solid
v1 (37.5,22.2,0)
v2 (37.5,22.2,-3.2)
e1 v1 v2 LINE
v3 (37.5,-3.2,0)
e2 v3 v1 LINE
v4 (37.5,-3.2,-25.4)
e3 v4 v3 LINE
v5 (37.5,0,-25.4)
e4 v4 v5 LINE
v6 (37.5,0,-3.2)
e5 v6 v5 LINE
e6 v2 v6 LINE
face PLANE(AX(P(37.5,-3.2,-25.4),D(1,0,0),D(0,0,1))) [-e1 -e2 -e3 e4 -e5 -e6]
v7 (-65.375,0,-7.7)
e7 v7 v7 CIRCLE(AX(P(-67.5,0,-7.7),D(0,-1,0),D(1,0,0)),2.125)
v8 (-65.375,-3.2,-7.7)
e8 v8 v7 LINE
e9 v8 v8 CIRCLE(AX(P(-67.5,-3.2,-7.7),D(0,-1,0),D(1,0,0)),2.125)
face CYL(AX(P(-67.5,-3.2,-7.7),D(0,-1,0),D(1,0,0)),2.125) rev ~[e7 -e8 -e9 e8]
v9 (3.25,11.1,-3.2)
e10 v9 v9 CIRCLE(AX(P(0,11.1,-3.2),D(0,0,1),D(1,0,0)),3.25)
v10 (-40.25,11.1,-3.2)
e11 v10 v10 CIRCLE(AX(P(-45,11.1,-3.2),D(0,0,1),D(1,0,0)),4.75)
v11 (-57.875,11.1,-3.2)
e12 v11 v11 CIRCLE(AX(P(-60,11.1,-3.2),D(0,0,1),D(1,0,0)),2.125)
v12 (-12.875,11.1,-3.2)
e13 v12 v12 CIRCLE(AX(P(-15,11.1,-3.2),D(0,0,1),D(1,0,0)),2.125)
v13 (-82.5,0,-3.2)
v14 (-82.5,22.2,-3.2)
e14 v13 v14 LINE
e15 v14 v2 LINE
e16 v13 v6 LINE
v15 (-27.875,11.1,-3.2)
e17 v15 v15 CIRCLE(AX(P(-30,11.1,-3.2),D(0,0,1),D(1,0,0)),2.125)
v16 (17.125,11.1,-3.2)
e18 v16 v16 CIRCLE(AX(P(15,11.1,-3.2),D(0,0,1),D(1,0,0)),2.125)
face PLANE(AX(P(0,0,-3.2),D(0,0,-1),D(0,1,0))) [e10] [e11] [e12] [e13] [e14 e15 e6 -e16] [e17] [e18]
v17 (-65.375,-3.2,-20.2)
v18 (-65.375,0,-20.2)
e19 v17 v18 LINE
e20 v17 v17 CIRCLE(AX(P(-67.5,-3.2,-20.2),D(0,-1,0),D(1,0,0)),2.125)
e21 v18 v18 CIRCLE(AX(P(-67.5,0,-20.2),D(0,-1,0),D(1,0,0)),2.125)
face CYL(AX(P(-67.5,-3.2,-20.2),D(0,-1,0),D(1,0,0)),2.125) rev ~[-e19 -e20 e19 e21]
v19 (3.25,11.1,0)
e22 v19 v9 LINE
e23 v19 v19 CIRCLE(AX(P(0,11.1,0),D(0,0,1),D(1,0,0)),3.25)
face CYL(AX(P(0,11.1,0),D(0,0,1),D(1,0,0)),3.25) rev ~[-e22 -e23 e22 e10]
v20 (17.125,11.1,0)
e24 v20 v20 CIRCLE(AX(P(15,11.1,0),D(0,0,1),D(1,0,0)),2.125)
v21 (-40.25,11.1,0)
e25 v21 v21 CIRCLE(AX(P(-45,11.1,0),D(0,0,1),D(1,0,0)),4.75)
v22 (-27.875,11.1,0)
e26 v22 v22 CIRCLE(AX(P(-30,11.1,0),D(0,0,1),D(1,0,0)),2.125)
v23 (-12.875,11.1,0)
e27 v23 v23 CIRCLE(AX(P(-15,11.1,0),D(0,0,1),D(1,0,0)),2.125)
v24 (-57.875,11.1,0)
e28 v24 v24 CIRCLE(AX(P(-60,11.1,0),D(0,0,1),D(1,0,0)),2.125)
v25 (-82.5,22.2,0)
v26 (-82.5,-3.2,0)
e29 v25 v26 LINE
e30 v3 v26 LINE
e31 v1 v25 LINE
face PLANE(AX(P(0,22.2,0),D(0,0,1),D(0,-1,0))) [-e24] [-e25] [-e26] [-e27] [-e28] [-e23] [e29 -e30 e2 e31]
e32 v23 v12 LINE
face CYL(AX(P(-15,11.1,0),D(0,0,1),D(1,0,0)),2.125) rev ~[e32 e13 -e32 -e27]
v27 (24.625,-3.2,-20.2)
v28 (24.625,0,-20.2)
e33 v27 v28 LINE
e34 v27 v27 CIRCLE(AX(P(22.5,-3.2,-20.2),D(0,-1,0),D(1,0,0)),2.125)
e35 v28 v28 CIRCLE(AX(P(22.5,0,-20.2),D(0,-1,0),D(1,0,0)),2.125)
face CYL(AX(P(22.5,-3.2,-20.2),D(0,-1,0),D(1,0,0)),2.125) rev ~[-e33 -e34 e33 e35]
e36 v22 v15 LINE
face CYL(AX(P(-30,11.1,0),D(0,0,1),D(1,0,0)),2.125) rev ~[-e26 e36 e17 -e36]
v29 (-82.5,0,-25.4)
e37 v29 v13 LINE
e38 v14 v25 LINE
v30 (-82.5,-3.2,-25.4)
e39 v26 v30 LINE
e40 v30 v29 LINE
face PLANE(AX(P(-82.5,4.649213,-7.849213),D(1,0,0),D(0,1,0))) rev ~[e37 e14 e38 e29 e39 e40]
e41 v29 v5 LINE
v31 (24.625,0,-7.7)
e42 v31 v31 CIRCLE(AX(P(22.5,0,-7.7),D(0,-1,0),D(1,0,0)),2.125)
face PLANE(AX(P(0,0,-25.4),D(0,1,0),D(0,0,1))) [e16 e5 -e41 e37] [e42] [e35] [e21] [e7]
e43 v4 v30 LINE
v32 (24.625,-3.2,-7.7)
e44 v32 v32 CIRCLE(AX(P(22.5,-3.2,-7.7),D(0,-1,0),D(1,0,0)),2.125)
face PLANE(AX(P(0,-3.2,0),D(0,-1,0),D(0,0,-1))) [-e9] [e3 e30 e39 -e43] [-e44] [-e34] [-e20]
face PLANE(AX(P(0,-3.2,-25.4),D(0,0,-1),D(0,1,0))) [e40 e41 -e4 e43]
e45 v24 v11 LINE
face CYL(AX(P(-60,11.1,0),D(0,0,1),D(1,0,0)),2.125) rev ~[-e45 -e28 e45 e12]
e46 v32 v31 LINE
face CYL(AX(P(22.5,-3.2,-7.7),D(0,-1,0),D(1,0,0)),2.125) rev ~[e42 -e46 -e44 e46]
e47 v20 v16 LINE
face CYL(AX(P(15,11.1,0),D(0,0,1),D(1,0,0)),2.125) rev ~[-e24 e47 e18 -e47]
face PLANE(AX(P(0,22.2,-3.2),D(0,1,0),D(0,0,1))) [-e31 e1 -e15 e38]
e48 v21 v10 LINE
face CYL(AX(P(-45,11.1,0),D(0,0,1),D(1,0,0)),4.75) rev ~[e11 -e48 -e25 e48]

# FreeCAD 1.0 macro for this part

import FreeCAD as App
import Part
import Sketcher

V = App.Vector

doc = App.newDocument("Part")
params = doc.addObject("Spreadsheet::Sheet", "Params")
for row, (alias, value) in enumerate([
    ("sketch1_width", "3.2 mm"),
    ("sketch1_width2", "22.2 mm"),
    ("pad1_length", "165 mm"),
    ("sketch2_diameter", "4.25 mm"),
    ("sketch2_width", "45 mm"),
    ("sketch2_height", "25.4 mm"),
    ("sketch3_diameter", "6.5 mm"),
    ("sketch3_diameter2", "9.5 mm"),
    ("sketch3_diameter3", "4.25 mm"),
    ("pocket2_length", "5 mm"),
], start=1):
    params.set(f"A{row}", alias)
    params.set(f"B{row}", "=" + value)
    params.setAlias(f"B{row}", alias)

body = doc.addObject("PartDesign::Body", "Body")

# Sketch on YZ plane
sketch1 = body.newObject("Sketcher::SketchObject", "Sketch")
sketch1.AttachmentSupport = (doc.getObject("YZ_Plane"), [""])
sketch1.MapMode = "FlatFace"
sketch1.addGeometry(Part.LineSegment(V(-3.2, -25.4, 0), V(0, -25.4, 0)), False)
sketch1.addGeometry(Part.LineSegment(V(0, -25.4, 0), V(0, -3.2, 0)), False)
sketch1.addGeometry(Part.LineSegment(V(0, -3.2, 0), V(22.2, -3.2, 0)), False)
sketch1.addGeometry(Part.LineSegment(V(22.2, -3.2, 0), V(22.2, 0, 0)), False)
sketch1.addGeometry(Part.LineSegment(V(22.2, 0, 0), V(-3.2, 0, 0)), False)
sketch1.addGeometry(Part.LineSegment(V(-3.2, 0, 0), V(-3.2, -25.4, 0)), False)
sketch1.addConstraint(Sketcher.Constraint("Coincident", 0, 2, 1, 1))
sketch1.addConstraint(Sketcher.Constraint("Coincident", 1, 2, 2, 1))
sketch1.addConstraint(Sketcher.Constraint("Coincident", 2, 2, 3, 1))
sketch1.addConstraint(Sketcher.Constraint("Coincident", 3, 2, 4, 1))
sketch1.addConstraint(Sketcher.Constraint("Coincident", 4, 2, 5, 1))
sketch1.addConstraint(Sketcher.Constraint("Coincident", 5, 2, 0, 1))
sketch1.addConstraint(Sketcher.Constraint("Horizontal", 0))
sketch1.addConstraint(Sketcher.Constraint("Vertical", 1))
sketch1.addConstraint(Sketcher.Constraint("Horizontal", 2))
sketch1.addConstraint(Sketcher.Constraint("Vertical", 3))
sketch1.addConstraint(Sketcher.Constraint("Horizontal", 4))
sketch1.addConstraint(Sketcher.Constraint("Vertical", 5))
sketch1.addConstraint(Sketcher.Constraint("PointOnObject", 0, 2, -2))
sketch1.addConstraint(Sketcher.Constraint("PointOnObject", 3, 2, -1))
sketch1.addConstraint(Sketcher.Constraint("Equal", 2, 1))
sketch1.addConstraint(Sketcher.Constraint("Equal", 0, 3))
sketch1.addConstraint(Sketcher.Constraint("DistanceX", 0, 1, 0, 2, 3.2))
sketch1.addConstraint(Sketcher.Constraint("DistanceX", 2, 1, 2, 2, 22.2))
sketch1.setExpression("Constraints[16]", "Params.sketch1_width")
sketch1.setExpression("Constraints[17]", "Params.sketch1_width2")
pad1 = body.newObject("PartDesign::Pad", "Pad")
pad1.Profile = sketch1
pad1.setExpression("Length", "Params.pad1_length")
pad1.Midplane = True

# Sketch on XZ plane
sketch2 = body.newObject("Sketcher::SketchObject", "Sketch001")
sketch2.AttachmentSupport = (doc.getObject("XZ_Plane"), [""])
sketch2.MapMode = "FlatFace"
sketch2.AttachmentOffset = App.Placement(V(0, 0, 3.2), App.Rotation())
sketch2.addGeometry(Part.Circle(V(-67.5, -20.2, 0), V(0, 0, 1), 2.1), False)
sketch2.addGeometry(Part.Circle(V(-67.5, -7.7, 0), V(0, 0, 1), 2.1), False)
sketch2.addGeometry(Part.Circle(V(22.5, -7.7, 0), V(0, 0, 1), 2.1), False)
sketch2.addGeometry(Part.Circle(V(22.5, -20.2, 0), V(0, 0, 1), 2.1), False)
sketch2.addGeometry(Part.LineSegment(V(37.5, 0, 0), V(37.5, -25.4, 0)), False)
sketch2.addGeometry(Part.LineSegment(V(37.5, -25.4, 0), V(82.5, -25.4, 0)), False)
sketch2.addGeometry(Part.LineSegment(V(82.5, -25.4, 0), V(82.5, 0, 0)), False)
sketch2.addGeometry(Part.LineSegment(V(82.5, 0, 0), V(37.5, 0, 0)), False)
sketch2.addConstraint(Sketcher.Constraint("Coincident", 4, 2, 5, 1))
sketch2.addConstraint(Sketcher.Constraint("Coincident", 5, 2, 6, 1))
sketch2.addConstraint(Sketcher.Constraint("Coincident", 6, 2, 7, 1))
sketch2.addConstraint(Sketcher.Constraint("Coincident", 7, 2, 4, 1))
sketch2.addConstraint(Sketcher.Constraint("Vertical", 4))
sketch2.addConstraint(Sketcher.Constraint("Horizontal", 5))
sketch2.addConstraint(Sketcher.Constraint("Vertical", 6))
sketch2.addConstraint(Sketcher.Constraint("Horizontal", 7))
sketch2.addConstraint(Sketcher.Constraint("Equal", 0, 1))
sketch2.addConstraint(Sketcher.Constraint("Equal", 1, 2))
sketch2.addConstraint(Sketcher.Constraint("Equal", 2, 3))
sketch2.addConstraint(Sketcher.Constraint("PointOnObject", 6, 2, -1))
sketch2.addConstraint(Sketcher.Constraint("Horizontal", 1, 3, 2, 3))
sketch2.addConstraint(Sketcher.Constraint("Horizontal", 0, 3, 3, 3))
sketch2.addConstraint(Sketcher.Constraint("Vertical", 0, 3, 1, 3))
sketch2.addConstraint(Sketcher.Constraint("Vertical", 2, 3, 3, 3))
sketch2.addConstraint(Sketcher.Constraint("Diameter", 0, 4.25))
sketch2.addConstraint(Sketcher.Constraint("DistanceX", 5, 1, 5, 2, 45.0))
sketch2.addConstraint(Sketcher.Constraint("DistanceY", 4, 2, 4, 1, 25.4))
sketch2.addConstraint(Sketcher.Constraint("DistanceX", 1, 3, 2, 3, 90.0))
sketch2.addConstraint(Sketcher.Constraint("DistanceX", 3, 3, 4, 2, 15.0))
sketch2.addConstraint(Sketcher.Constraint("DistanceX", 0, 3, -1, 1, 67.5))
sketch2.addConstraint(Sketcher.Constraint("DistanceY", 0, 3, -1, 1, 20.2))
sketch2.addConstraint(Sketcher.Constraint("DistanceY", 1, 3, -1, 1, 7.7))
sketch2.setExpression("Constraints[16]", "Params.sketch2_diameter")
sketch2.setExpression("Constraints[17]", "Params.sketch2_width")
sketch2.setExpression("Constraints[18]", "Params.sketch2_height")
pocket1 = body.newObject("PartDesign::Pocket", "Pocket")
pocket1.Profile = sketch2
pocket1.Type = "ThroughAll"

# Sketch on XY plane
sketch3 = body.newObject("Sketcher::SketchObject", "Sketch002")
sketch3.AttachmentSupport = (doc.getObject("XY_Plane"), [""])
sketch3.MapMode = "FlatFace"
sketch3.addGeometry(Part.Circle(V(0, 11.1, 0), V(0, 0, 1), 3.2), False)
sketch3.addGeometry(Part.Circle(V(-45, 11.1, 0), V(0, 0, 1), 4.8), False)
sketch3.addGeometry(Part.Circle(V(-60, 11.1, 0), V(0, 0, 1), 2.1), False)
sketch3.addGeometry(Part.Circle(V(-30, 11.1, 0), V(0, 0, 1), 2.1), False)
sketch3.addGeometry(Part.Circle(V(-15, 11.1, 0), V(0, 0, 1), 2.1), False)
sketch3.addGeometry(Part.Circle(V(15, 11.1, 0), V(0, 0, 1), 2.1), False)
sketch3.addConstraint(Sketcher.Constraint("Equal", 2, 3))
sketch3.addConstraint(Sketcher.Constraint("Equal", 3, 4))
sketch3.addConstraint(Sketcher.Constraint("Equal", 4, 5))
sketch3.addConstraint(Sketcher.Constraint("Symmetric", 4, 3, 5, 3, -2))
sketch3.addConstraint(Sketcher.Constraint("PointOnObject", 0, 3, -2))
sketch3.addConstraint(Sketcher.Constraint("Horizontal", 0, 3, 1, 3))
sketch3.addConstraint(Sketcher.Constraint("Horizontal", 1, 3, 2, 3))
sketch3.addConstraint(Sketcher.Constraint("Horizontal", 2, 3, 3, 3))
sketch3.addConstraint(Sketcher.Constraint("Horizontal", 3, 3, 4, 3))
sketch3.addConstraint(Sketcher.Constraint("Diameter", 0, 6.5))
sketch3.addConstraint(Sketcher.Constraint("Diameter", 1, 9.5))
sketch3.addConstraint(Sketcher.Constraint("Diameter", 2, 4.25))
sketch3.addConstraint(Sketcher.Constraint("DistanceX", 1, 3, -1, 1, 45.0))
sketch3.addConstraint(Sketcher.Constraint("DistanceX", 2, 3, -1, 1, 60.0))
sketch3.addConstraint(Sketcher.Constraint("DistanceX", 3, 3, -1, 1, 30.0))
sketch3.addConstraint(Sketcher.Constraint("DistanceX", 4, 3, -1, 1, 15.0))
sketch3.addConstraint(Sketcher.Constraint("DistanceY", -1, 1, 0, 3, 11.1))
sketch3.setExpression("Constraints[9]", "Params.sketch3_diameter")
sketch3.setExpression("Constraints[10]", "Params.sketch3_diameter2")
sketch3.setExpression("Constraints[11]", "Params.sketch3_diameter3")
pocket2 = body.newObject("PartDesign::Pocket", "Pocket001")
pocket2.Profile = sketch3
pocket2.setExpression("Length", "Params.pocket2_length")

doc.recompute()
